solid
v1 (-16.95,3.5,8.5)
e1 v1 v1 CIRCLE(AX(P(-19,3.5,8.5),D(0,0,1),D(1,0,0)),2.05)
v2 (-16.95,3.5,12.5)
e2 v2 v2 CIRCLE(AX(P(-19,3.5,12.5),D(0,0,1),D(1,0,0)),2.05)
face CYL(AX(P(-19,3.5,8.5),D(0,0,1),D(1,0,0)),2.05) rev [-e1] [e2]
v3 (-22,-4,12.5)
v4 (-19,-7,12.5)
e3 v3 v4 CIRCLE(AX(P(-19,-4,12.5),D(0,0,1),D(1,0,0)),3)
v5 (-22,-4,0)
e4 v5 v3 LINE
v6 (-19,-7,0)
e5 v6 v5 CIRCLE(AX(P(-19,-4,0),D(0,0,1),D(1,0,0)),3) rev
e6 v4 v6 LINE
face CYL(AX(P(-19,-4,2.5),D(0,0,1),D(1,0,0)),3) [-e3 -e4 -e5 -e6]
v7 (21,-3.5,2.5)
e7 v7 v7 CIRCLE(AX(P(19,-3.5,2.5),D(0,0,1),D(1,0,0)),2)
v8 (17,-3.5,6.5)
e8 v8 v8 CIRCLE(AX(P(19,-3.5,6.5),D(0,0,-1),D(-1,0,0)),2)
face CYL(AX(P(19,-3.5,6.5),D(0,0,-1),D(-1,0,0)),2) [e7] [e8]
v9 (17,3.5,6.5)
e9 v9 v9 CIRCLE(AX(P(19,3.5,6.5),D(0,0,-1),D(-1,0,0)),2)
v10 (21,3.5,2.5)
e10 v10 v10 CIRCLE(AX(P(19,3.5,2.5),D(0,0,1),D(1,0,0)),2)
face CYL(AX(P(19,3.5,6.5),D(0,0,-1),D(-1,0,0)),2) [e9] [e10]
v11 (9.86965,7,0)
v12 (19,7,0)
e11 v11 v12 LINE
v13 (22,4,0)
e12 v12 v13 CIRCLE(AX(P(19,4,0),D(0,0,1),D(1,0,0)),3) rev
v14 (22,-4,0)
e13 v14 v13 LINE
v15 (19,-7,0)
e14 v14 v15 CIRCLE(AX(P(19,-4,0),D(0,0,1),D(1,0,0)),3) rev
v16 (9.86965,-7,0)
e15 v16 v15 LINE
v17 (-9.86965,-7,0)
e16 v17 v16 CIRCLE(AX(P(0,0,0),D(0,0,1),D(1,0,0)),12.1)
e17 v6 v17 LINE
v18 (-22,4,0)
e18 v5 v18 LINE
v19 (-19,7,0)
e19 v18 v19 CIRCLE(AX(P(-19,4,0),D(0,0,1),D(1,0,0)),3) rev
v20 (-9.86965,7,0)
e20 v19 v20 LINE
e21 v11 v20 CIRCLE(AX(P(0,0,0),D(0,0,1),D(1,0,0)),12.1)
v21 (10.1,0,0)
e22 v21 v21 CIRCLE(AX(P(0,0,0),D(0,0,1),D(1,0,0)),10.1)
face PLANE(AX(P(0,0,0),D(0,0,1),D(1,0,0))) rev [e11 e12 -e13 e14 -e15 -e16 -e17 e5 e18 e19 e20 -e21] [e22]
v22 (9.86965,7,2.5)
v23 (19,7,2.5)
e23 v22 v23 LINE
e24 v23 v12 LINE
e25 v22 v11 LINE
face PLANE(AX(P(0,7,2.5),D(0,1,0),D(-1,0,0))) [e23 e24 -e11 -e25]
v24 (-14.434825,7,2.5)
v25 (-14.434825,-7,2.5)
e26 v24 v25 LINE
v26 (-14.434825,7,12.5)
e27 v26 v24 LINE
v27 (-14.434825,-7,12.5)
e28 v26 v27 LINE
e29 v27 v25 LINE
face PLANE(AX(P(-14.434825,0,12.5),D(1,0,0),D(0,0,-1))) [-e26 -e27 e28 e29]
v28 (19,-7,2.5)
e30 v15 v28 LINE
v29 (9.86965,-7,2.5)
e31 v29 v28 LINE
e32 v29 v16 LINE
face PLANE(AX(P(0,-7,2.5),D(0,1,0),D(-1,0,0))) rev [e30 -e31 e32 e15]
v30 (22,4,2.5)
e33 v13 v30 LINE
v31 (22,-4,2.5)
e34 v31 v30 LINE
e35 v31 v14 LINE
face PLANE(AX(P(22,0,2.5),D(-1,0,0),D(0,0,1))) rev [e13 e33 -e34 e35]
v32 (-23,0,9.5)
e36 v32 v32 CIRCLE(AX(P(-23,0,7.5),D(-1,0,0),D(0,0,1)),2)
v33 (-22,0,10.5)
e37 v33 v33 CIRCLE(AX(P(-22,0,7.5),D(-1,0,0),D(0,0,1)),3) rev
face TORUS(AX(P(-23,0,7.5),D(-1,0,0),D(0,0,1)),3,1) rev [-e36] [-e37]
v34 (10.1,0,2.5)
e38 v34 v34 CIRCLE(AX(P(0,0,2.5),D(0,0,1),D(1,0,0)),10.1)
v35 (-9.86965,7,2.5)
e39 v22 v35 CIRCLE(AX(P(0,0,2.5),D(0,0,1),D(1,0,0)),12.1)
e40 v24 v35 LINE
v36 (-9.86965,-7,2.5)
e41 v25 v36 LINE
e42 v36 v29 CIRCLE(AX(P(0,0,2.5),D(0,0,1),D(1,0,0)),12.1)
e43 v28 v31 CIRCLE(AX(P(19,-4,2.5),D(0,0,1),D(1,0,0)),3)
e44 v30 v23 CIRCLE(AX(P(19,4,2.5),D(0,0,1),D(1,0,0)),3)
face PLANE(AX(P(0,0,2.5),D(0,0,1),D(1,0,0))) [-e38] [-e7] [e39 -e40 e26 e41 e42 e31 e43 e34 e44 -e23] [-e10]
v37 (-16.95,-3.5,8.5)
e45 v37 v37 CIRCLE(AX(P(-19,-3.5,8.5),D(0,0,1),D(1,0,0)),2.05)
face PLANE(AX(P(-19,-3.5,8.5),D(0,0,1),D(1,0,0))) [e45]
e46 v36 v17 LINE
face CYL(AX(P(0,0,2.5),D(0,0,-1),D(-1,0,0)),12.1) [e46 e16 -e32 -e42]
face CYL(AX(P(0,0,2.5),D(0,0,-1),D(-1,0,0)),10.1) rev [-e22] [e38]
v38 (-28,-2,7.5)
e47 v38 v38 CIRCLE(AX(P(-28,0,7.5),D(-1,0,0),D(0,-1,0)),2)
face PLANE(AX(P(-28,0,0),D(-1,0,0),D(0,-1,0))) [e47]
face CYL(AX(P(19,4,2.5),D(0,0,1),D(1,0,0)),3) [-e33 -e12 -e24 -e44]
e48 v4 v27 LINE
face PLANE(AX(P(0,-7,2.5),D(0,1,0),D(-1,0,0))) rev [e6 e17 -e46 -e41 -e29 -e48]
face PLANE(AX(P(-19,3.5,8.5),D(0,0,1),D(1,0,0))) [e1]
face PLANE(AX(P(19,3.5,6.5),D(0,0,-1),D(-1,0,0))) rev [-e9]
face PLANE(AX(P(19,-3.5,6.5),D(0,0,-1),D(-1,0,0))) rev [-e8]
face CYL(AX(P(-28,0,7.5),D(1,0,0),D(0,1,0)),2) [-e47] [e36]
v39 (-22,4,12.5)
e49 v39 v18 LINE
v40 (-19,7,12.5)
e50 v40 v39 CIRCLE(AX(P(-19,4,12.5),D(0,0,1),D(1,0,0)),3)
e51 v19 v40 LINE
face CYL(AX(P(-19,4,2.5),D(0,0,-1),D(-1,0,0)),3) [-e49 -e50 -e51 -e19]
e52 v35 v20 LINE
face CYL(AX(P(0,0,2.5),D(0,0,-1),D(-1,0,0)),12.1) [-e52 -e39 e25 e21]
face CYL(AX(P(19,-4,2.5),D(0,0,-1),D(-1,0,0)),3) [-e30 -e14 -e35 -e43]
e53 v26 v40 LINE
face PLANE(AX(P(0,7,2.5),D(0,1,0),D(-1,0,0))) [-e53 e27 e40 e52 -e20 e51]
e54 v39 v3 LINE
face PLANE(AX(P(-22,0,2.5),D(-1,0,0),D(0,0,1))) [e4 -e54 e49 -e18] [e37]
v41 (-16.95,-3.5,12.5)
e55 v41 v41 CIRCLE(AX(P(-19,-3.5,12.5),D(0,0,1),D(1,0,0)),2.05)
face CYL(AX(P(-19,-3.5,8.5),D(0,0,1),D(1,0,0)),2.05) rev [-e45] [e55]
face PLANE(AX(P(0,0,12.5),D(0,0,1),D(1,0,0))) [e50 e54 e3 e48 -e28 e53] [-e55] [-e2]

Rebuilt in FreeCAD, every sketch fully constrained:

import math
import FreeCAD as App
import Part
import Sketcher


def edges_at(feature, points):
    """Names of the edges that pass closest to the given points."""
    edges = feature.Shape.Edges
    near = lambda p: min(range(len(edges)), key=lambda i: edges[i].distToShape(Part.Vertex(*p))[0])
    return sorted({f"Edge{near(p) + 1}" for p in points})

doc = App.newDocument("Part")
body = doc.addObject("PartDesign::Body", "Body")

# Sketch on XY plane
sketch1 = doc.addObject("Sketcher::SketchObject", "Sketch")
body.addObject(sketch1)
sketch1.AttachmentSupport = (doc.XY_Plane, [""])
sketch1.MapMode = "FlatFace"
sketch1.addGeometry(Part.LineSegment(App.Vector(22, -7, 0), App.Vector(22, 7, 0)), False)
sketch1.addGeometry(Part.LineSegment(App.Vector(22, 7, 0), App.Vector(10, 7, 0)), False)
sketch1.addGeometry(Part.ArcOfCircle(Part.Circle(App.Vector(0, 0, 0), App.Vector(0, 0, 1), 12), math.radians(35), math.radians(145)), False)
sketch1.addGeometry(Part.LineSegment(App.Vector(-10, 7, 0), App.Vector(-22, 7, 0)), False)
sketch1.addGeometry(Part.LineSegment(App.Vector(-22, 7, 0), App.Vector(-22, -7, 0)), False)
sketch1.addGeometry(Part.LineSegment(App.Vector(-22, -7, 0), App.Vector(-10, -7, 0)), False)
sketch1.addGeometry(Part.ArcOfCircle(Part.Circle(App.Vector(0, 0, 0), App.Vector(0, 0, 1), 12), math.radians(-145), math.radians(-35)), False)
sketch1.addGeometry(Part.LineSegment(App.Vector(10, -7, 0), App.Vector(22, -7, 0)), False)
sketch1.addGeometry(Part.ArcOfCircle(Part.Circle(App.Vector(0, 0, 0), App.Vector(0, 0, 1), 10), math.radians(0), math.radians(44)), False)
sketch1.addGeometry(Part.ArcOfCircle(Part.Circle(App.Vector(0, 0, 0), App.Vector(0, 0, 1), 10), math.radians(-44), math.radians(0)), False)
sketch1.addGeometry(Part.ArcOfCircle(Part.Circle(App.Vector(0, 0, 0), App.Vector(0, 0, 1), 10), math.radians(-136), math.radians(-44)), False)
sketch1.addGeometry(Part.ArcOfCircle(Part.Circle(App.Vector(0, 0, 0), App.Vector(0, 0, 1), 10), math.radians(136), math.radians(224)), False)
sketch1.addGeometry(Part.ArcOfCircle(Part.Circle(App.Vector(0, 0, 0), App.Vector(0, 0, 1), 10), math.radians(44), math.radians(136)), False)
sketch1.addConstraint(Sketcher.Constraint("Coincident", 0, 2, 1, 1))
sketch1.addConstraint(Sketcher.Constraint("Coincident", 1, 2, 2, 1))
sketch1.addConstraint(Sketcher.Constraint("Coincident", 2, 2, 3, 1))
sketch1.addConstraint(Sketcher.Constraint("Coincident", 3, 2, 4, 1))
sketch1.addConstraint(Sketcher.Constraint("Coincident", 4, 2, 5, 1))
sketch1.addConstraint(Sketcher.Constraint("Coincident", 5, 2, 6, 1))
sketch1.addConstraint(Sketcher.Constraint("Coincident", 6, 2, 7, 1))
sketch1.addConstraint(Sketcher.Constraint("Coincident", 7, 2, 0, 1))
sketch1.addConstraint(Sketcher.Constraint("Tangent", 8, 1, 9, 2))
sketch1.addConstraint(Sketcher.Constraint("Tangent", 9, 1, 10, 2))
sketch1.addConstraint(Sketcher.Constraint("Tangent", 10, 1, 11, 2))
sketch1.addConstraint(Sketcher.Constraint("Tangent", 11, 1, 12, 2))
sketch1.addConstraint(Sketcher.Constraint("Tangent", 12, 1, 8, 2))
sketch1.addConstraint(Sketcher.Constraint("Vertical", 0))
sketch1.addConstraint(Sketcher.Constraint("Horizontal", 1))
sketch1.addConstraint(Sketcher.Constraint("Horizontal", 3))
sketch1.addConstraint(Sketcher.Constraint("Vertical", 4))
sketch1.addConstraint(Sketcher.Constraint("Horizontal", 5))
sketch1.addConstraint(Sketcher.Constraint("Horizontal", 7))
sketch1.addConstraint(Sketcher.Constraint("Coincident", 2, 3, -1, 1))
sketch1.addConstraint(Sketcher.Constraint("Coincident", 6, 3, -1, 1))
sketch1.addConstraint(Sketcher.Constraint("Coincident", 8, 3, -1, 1))
sketch1.addConstraint(Sketcher.Constraint("Coincident", 10, 3, -1, 1))
sketch1.addConstraint(Sketcher.Constraint("Equal", 2, 6))
sketch1.addConstraint(Sketcher.Constraint("Symmetric", 0, 2, 4, 2, -1, 1))
sketch1.addConstraint(Sketcher.Constraint("PointOnObject", 8, 1, -1))
sketch1.addConstraint(Sketcher.Constraint("Horizontal", 1, 2, 2, 2))
sketch1.addConstraint(Sketcher.Constraint("Horizontal", 5, 2, 6, 2))
sketch1.addConstraint(Sketcher.Constraint("Horizontal", 7, 2, 9, 1))
sketch1.addConstraint(Sketcher.Constraint("Horizontal", 9, 1, 10, 1))
sketch1.addConstraint(Sketcher.Constraint("Horizontal", 3, 2, 11, 1))
sketch1.addConstraint(Sketcher.Constraint("Horizontal", 11, 1, 12, 1))
sketch1.addConstraint(Sketcher.Constraint("Radius", 2, 12.1))
sketch1.addConstraint(Sketcher.Constraint("Radius", 8, 10.1))
sketch1.addConstraint(Sketcher.Constraint("DistanceY", 0, 1, 0, 2, 14.0))
sketch1.addConstraint(Sketcher.Constraint("DistanceX", -1, 1, 0, 2, 22.0))
pad1 = doc.addObject("PartDesign::Pad", "Pad")
body.addObject(pad1)
pad1.Profile = sketch1
pad1.Length = 2.5
doc.recompute()

fillet = doc.addObject("PartDesign::Fillet", "Fillet")
body.addObject(fillet)
fillet.Base = (pad1, edges_at(pad1, [
    (22, 7, 1.25),
    (22, -7, 1.25),
    (-22, -7, 1.25),
    (-22, 7, 1.25),
]))
fillet.Radius = 3

# Sketch on XY plane
sketch2 = doc.addObject("Sketcher::SketchObject", "Sketch001")
body.addObject(sketch2)
sketch2.AttachmentSupport = (doc.XY_Plane, [""])
sketch2.MapMode = "FlatFace"
sketch2.AttachmentOffset = App.Placement(App.Vector(0, 0, 12.5), App.Rotation())
sketch2.addGeometry(Part.LineSegment(App.Vector(-14.4, -7, 0), App.Vector(-14.4, 7, 0)), False)
sketch2.addGeometry(Part.LineSegment(App.Vector(-14.4, 7, 0), App.Vector(-19, 7, 0)), False)
sketch2.addGeometry(Part.ArcOfCircle(Part.Circle(App.Vector(-19, 4, 0), App.Vector(0, 0, 1), 3), math.radians(90), math.radians(180)), False)
sketch2.addGeometry(Part.LineSegment(App.Vector(-22, 4, 0), App.Vector(-22, -4, 0)), False)
sketch2.addGeometry(Part.ArcOfCircle(Part.Circle(App.Vector(-19, -4, 0), App.Vector(0, 0, 1), 3), math.radians(180), math.radians(270)), False)
sketch2.addGeometry(Part.LineSegment(App.Vector(-19, -7, 0), App.Vector(-14.4, -7, 0)), False)
sketch2.addConstraint(Sketcher.Constraint("Coincident", 0, 2, 1, 1))
sketch2.addConstraint(Sketcher.Constraint("Tangent", 1, 2, 2, 1))
sketch2.addConstraint(Sketcher.Constraint("Tangent", 2, 2, 3, 1))
sketch2.addConstraint(Sketcher.Constraint("Tangent", 3, 2, 4, 1))
sketch2.addConstraint(Sketcher.Constraint("Tangent", 4, 2, 5, 1))
sketch2.addConstraint(Sketcher.Constraint("Coincident", 5, 2, 0, 1))
sketch2.addConstraint(Sketcher.Constraint("Vertical", 0))
sketch2.addConstraint(Sketcher.Constraint("Horizontal", 1))
sketch2.addConstraint(Sketcher.Constraint("Vertical", 3))
sketch2.addConstraint(Sketcher.Constraint("Horizontal", 5))
sketch2.addConstraint(Sketcher.Constraint("Equal", 2, 4))
sketch2.addConstraint(Sketcher.Constraint("Radius", 2, 3.0))
sketch2.addConstraint(Sketcher.Constraint("DistanceY", 0, 1, 0, 2, 14.0))
sketch2.addConstraint(Sketcher.Constraint("DistanceX", 2, 3, -1, 1, 19.0))
sketch2.addConstraint(Sketcher.Constraint("DistanceY", -1, 1, 2, 3, 4.0))
sketch2.addConstraint(Sketcher.Constraint("DistanceX", 1, 2, 1, 1, 4.565175))
pad2 = doc.addObject("PartDesign::Pad", "Pad001")
body.addObject(pad2)
pad2.Profile = sketch2
pad2.Length = 10
pad2.Reversed = True

# Sketch on YZ plane
sketch3 = doc.addObject("Sketcher::SketchObject", "Sketch002")
body.addObject(sketch3)
sketch3.AttachmentSupport = (doc.YZ_Plane, [""])
sketch3.MapMode = "FlatFace"
sketch3.AttachmentOffset = App.Placement(App.Vector(0, 0, -22), App.Rotation())
sketch3.addGeometry(Part.Circle(App.Vector(0, 7.5, 0), App.Vector(0, 0, 1), 2), False)
sketch3.addConstraint(Sketcher.Constraint("PointOnObject", 0, 3, -2))
sketch3.addConstraint(Sketcher.Constraint("Diameter", 0, 4.0))
sketch3.addConstraint(Sketcher.Constraint("DistanceY", -1, 1, 0, 3, 7.5))
pad3 = doc.addObject("PartDesign::Pad", "Pad002")
body.addObject(pad3)
pad3.Profile = sketch3
pad3.Length = 6
pad3.Reversed = True

# Sketch on XY plane
sketch4 = doc.addObject("Sketcher::SketchObject", "Sketch003")
body.addObject(sketch4)
sketch4.AttachmentSupport = (doc.XY_Plane, [""])
sketch4.MapMode = "FlatFace"
sketch4.AttachmentOffset = App.Placement(App.Vector(0, 0, 2.5), App.Rotation())
sketch4.addGeometry(Part.Circle(App.Vector(19, -3.5, 0), App.Vector(0, 0, 1), 2), False)
sketch4.addGeometry(Part.Circle(App.Vector(19, 3.5, 0), App.Vector(0, 0, 1), 2), False)
sketch4.addConstraint(Sketcher.Constraint("Equal", 0, 1))
sketch4.addConstraint(Sketcher.Constraint("Symmetric", 0, 3, 1, 3, -1))
sketch4.addConstraint(Sketcher.Constraint("Diameter", 0, 4.0))
sketch4.addConstraint(Sketcher.Constraint("DistanceX", -1, 1, 0, 3, 19.0))
sketch4.addConstraint(Sketcher.Constraint("DistanceY", 0, 3, 1, 3, 7.0))
pad4 = doc.addObject("PartDesign::Pad", "Pad003")
body.addObject(pad4)
pad4.Profile = sketch4
pad4.Length = 4

# Sketch on XY plane
sketch5 = doc.addObject("Sketcher::SketchObject", "Sketch004")
body.addObject(sketch5)
sketch5.AttachmentSupport = (doc.XY_Plane, [""])
sketch5.MapMode = "FlatFace"
sketch5.AttachmentOffset = App.Placement(App.Vector(0, 0, 12.5), App.Rotation())
sketch5.addGeometry(Part.Circle(App.Vector(-19, 3.5, 0), App.Vector(0, 0, 1), 2), False)
sketch5.addGeometry(Part.Circle(App.Vector(-19, -3.5, 0), App.Vector(0, 0, 1), 2), False)
sketch5.addConstraint(Sketcher.Constraint("Equal", 0, 1))
sketch5.addConstraint(Sketcher.Constraint("Symmetric", 0, 3, 1, 3, -1))
sketch5.addConstraint(Sketcher.Constraint("Diameter", 0, 4.1))
sketch5.addConstraint(Sketcher.Constraint("DistanceX", 0, 3, -1, 1, 19.0))
sketch5.addConstraint(Sketcher.Constraint("DistanceY", 1, 3, 0, 3, 7.0))
pocket1 = doc.addObject("PartDesign::Pocket", "Pocket")
body.addObject(pocket1)
pocket1.Profile = sketch5
pocket1.Length = 4
doc.recompute()

fillet2 = doc.addObject("PartDesign::Fillet", "Fillet001")
body.addObject(fillet2)
fillet2.Base = (pocket1, edges_at(pocket1, [(-22, 2, 7.5)]))
fillet2.Radius = 1

doc.recompute()
